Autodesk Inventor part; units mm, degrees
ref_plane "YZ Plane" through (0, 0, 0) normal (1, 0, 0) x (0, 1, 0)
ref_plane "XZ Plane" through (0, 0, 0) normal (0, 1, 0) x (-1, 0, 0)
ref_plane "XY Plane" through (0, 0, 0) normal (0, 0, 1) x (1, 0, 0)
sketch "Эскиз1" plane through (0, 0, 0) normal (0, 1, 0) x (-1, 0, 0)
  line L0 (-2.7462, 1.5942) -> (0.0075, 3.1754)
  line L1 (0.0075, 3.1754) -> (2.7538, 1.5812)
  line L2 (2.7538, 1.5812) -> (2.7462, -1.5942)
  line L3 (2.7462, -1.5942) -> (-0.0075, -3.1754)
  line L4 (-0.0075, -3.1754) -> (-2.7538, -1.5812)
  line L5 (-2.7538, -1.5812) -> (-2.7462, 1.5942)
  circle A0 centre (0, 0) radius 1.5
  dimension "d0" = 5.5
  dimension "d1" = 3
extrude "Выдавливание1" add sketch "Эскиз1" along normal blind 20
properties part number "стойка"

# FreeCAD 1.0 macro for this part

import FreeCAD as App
import Part
import Sketcher
from FreeCAD import Vector

doc = App.newDocument("Part")
body = doc.addObject("PartDesign::Body", "Body")

# Sketch on XZ plane
sketch1 = body.newObject("Sketcher::SketchObject", "Sketch")
sketch1.AttachmentSupport = (doc.getObject("XZ_Plane"), [""])
sketch1.MapMode = "FlatFace"
sketch1.addGeometry([
    Part.LineSegment(Vector(-0.0075, 3.1754, 0), Vector(2.7462, 1.5942, 0)),  # 0
    Part.LineSegment(Vector(2.7462, 1.5942, 0), Vector(2.7538, -1.5812, 0)),  # 1
    Part.LineSegment(Vector(2.7538, -1.5812, 0), Vector(0.0075, -3.1754, 0)),  # 2
    Part.LineSegment(Vector(0.0075, -3.1754, 0), Vector(-2.7462, -1.5942, 0)),  # 3
    Part.LineSegment(Vector(-2.7462, -1.5942, 0), Vector(-2.7538, 1.5812, 0)),  # 4
    Part.LineSegment(Vector(-2.7538, 1.5812, 0), Vector(-0.0075, 3.1754, 0)),  # 5
    Part.Circle(Vector(0, 0, 0), Vector(0, 0, 1), 1.5),  # 6
], False)
sketch1.addConstraint([
    Sketcher.Constraint("Coincident", 0, 2, 1, 1),
    Sketcher.Constraint("Coincident", 1, 2, 2, 1),
    Sketcher.Constraint("Coincident", 2, 2, 3, 1),
    Sketcher.Constraint("Coincident", 3, 2, 4, 1),
    Sketcher.Constraint("Coincident", 4, 2, 5, 1),
    Sketcher.Constraint("Coincident", 5, 2, 0, 1),
    Sketcher.Constraint("Coincident", 6, 3, -1, 1),
    Sketcher.Constraint("Symmetric", 0, 2, 3, 2, -1, 1),
    Sketcher.Constraint("Symmetric", 1, 2, 4, 2, -1, 1),
    Sketcher.Constraint("Symmetric", 2, 2, 5, 2, -1, 1),
    Sketcher.Constraint("Equal", 0, 1),
    Sketcher.Constraint("Equal", 1, 2),
    Sketcher.Constraint("Diameter", 6, 3.0),
    Sketcher.Constraint("DistanceX", 3, 2, 1, 2, 5.5),
    Sketcher.Constraint("DistanceY", 3, 2, 1, 2, 0.013),
    Sketcher.Constraint("Distance", 0, 3.1754),
    Sketcher.Constraint("DistanceX", -1, 1, 0, 2, 2.7462),
])
pad1 = body.newObject("PartDesign::Pad", "Pad")
pad1.Profile = sketch1
pad1.Length = 20
pad1.Reversed = True

doc.recompute()
